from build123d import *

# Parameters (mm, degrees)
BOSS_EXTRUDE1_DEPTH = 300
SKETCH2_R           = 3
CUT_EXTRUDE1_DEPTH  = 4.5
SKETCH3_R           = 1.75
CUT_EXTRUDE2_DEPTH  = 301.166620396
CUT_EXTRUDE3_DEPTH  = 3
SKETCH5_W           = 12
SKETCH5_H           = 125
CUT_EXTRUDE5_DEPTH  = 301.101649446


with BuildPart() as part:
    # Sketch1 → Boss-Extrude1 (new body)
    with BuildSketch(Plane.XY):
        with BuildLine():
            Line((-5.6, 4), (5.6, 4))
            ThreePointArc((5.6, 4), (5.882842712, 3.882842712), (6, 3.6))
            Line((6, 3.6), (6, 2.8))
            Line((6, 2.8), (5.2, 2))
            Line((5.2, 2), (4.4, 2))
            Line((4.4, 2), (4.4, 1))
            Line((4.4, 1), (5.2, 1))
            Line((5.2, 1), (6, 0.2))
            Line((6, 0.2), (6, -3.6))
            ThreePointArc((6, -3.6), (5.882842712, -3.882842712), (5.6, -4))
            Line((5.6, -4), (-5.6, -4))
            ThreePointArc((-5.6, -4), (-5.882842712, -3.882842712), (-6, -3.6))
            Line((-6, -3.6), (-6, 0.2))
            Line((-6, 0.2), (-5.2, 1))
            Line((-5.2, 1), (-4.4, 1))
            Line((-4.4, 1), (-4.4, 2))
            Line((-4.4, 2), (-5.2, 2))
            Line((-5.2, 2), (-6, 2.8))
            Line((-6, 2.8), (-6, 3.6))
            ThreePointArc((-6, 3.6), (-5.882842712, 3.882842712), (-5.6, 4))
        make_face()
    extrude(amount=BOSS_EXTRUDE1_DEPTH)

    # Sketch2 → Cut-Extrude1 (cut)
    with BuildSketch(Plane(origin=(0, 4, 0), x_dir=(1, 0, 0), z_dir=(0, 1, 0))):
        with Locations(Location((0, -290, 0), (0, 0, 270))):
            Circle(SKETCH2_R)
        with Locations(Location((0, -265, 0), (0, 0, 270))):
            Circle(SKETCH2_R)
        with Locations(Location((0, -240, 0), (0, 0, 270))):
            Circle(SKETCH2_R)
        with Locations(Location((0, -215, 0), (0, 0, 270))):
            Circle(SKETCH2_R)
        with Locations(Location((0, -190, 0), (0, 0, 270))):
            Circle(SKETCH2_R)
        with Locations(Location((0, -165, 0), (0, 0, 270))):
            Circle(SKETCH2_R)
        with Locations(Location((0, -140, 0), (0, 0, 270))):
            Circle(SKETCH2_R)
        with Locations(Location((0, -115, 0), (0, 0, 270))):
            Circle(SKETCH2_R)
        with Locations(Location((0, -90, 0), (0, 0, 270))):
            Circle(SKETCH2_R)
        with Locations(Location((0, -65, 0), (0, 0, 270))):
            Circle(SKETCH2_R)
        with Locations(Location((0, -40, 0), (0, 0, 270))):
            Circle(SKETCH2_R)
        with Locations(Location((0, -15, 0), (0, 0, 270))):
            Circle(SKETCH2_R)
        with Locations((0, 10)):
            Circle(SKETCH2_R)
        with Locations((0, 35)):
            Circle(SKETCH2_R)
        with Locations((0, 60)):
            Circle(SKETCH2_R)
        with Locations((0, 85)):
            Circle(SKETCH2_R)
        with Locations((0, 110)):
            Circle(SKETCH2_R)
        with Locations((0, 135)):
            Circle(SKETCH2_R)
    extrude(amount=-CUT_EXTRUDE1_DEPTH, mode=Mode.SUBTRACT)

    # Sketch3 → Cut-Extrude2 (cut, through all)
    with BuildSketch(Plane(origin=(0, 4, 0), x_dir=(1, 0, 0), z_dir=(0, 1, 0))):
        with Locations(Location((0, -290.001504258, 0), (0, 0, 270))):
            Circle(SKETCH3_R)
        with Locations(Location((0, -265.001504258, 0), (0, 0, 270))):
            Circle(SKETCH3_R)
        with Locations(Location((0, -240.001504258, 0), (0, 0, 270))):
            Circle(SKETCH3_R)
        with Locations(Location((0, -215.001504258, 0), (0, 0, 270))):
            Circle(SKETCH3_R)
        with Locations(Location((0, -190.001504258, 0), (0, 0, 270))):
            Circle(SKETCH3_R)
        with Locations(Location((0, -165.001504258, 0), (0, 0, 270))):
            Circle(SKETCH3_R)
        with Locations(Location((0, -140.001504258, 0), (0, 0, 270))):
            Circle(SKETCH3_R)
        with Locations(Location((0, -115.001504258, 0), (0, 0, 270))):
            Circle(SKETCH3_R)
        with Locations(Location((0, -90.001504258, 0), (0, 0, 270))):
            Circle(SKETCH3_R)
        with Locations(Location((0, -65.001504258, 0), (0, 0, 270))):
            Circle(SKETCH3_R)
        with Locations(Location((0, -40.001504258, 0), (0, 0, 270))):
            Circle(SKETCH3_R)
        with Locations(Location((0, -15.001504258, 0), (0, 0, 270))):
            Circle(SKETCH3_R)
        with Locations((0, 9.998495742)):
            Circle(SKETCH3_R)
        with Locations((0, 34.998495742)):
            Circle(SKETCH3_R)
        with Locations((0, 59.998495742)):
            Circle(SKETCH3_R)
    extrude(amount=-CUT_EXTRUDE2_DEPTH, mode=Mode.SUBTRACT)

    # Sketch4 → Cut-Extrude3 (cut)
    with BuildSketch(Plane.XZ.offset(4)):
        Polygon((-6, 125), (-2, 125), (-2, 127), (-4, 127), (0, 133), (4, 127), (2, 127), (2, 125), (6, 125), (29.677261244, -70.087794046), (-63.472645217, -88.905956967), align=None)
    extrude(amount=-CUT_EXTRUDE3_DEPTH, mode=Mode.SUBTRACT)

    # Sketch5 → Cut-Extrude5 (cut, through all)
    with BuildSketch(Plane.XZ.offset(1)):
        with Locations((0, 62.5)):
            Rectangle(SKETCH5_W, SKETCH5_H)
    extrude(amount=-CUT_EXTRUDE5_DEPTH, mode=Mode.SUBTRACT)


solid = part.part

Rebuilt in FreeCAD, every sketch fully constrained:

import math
import FreeCAD as App
import Part
import Sketcher

V = App.Vector
Q = App.Units.Quantity

doc = App.newDocument("Part")
body = doc.addObject("PartDesign::Body", "Body")

# Sketch on XY plane
sketch1 = body.newObject("Sketcher::SketchObject", "Sketch")
sketch1.AttachmentSupport = (doc.getObject("XY_Plane"), [""])
sketch1.MapMode = "FlatFace"
sketch1.addGeometry([
    Part.LineSegment(V(5.6, 4, 0), V(-5.6, 4, 0)),  # 0
    Part.ArcOfCircle(Part.Circle(V(-5.6, 3.6, 0), V(0, 0, 1), 0.4), math.radians(90), math.radians(180)),  # 1
    Part.LineSegment(V(-6, 3.6, 0), V(-6, 2.8, 0)),  # 2
    Part.LineSegment(V(-6, 2.8, 0), V(-5.2, 2, 0)),  # 3
    Part.LineSegment(V(-5.2, 2, 0), V(-4.4, 2, 0)),  # 4
    Part.LineSegment(V(-4.4, 2, 0), V(-4.4, 1, 0)),  # 5
    Part.LineSegment(V(-4.4, 1, 0), V(-5.2, 1, 0)),  # 6
    Part.LineSegment(V(-5.2, 1, 0), V(-6, 0.2, 0)),  # 7
    Part.LineSegment(V(-6, 0.2, 0), V(-6, -3.6, 0)),  # 8
    Part.ArcOfCircle(Part.Circle(V(-5.6, -3.6, 0), V(0, 0, 1), 0.4), math.radians(-180), math.radians(-90)),  # 9
    Part.LineSegment(V(-5.6, -4, 0), V(5.6, -4, 0)),  # 10
    Part.ArcOfCircle(Part.Circle(V(5.6, -3.6, 0), V(0, 0, 1), 0.4), math.radians(-90), math.radians(0)),  # 11
    Part.LineSegment(V(6, -3.6, 0), V(6, 0.2, 0)),  # 12
    Part.LineSegment(V(6, 0.2, 0), V(5.2, 1, 0)),  # 13
    Part.LineSegment(V(5.2, 1, 0), V(4.4, 1, 0)),  # 14
    Part.LineSegment(V(4.4, 1, 0), V(4.4, 2, 0)),  # 15
    Part.LineSegment(V(4.4, 2, 0), V(5.2, 2, 0)),  # 16
    Part.LineSegment(V(5.2, 2, 0), V(6, 2.8, 0)),  # 17
    Part.LineSegment(V(6, 2.8, 0), V(6, 3.6, 0)),  # 18
    Part.ArcOfCircle(Part.Circle(V(5.6, 3.6, 0), V(0, 0, 1), 0.4), math.radians(0), math.radians(90)),  # 19
], False)
sketch1.addConstraint([
    Sketcher.Constraint("Tangent", 0, 2, 1, 1),
    Sketcher.Constraint("Tangent", 1, 2, 2, 1),
    Sketcher.Constraint("Coincident", 2, 2, 3, 1),
    Sketcher.Constraint("Coincident", 3, 2, 4, 1),
    Sketcher.Constraint("Coincident", 4, 2, 5, 1),
    Sketcher.Constraint("Coincident", 5, 2, 6, 1),
    Sketcher.Constraint("Coincident", 6, 2, 7, 1),
    Sketcher.Constraint("Coincident", 7, 2, 8, 1),
    Sketcher.Constraint("Tangent", 8, 2, 9, 1),
    Sketcher.Constraint("Tangent", 9, 2, 10, 1),
    Sketcher.Constraint("Tangent", 10, 2, 11, 1),
    Sketcher.Constraint("Tangent", 11, 2, 12, 1),
    Sketcher.Constraint("Coincident", 12, 2, 13, 1),
    Sketcher.Constraint("Coincident", 13, 2, 14, 1),
    Sketcher.Constraint("Coincident", 14, 2, 15, 1),
    Sketcher.Constraint("Coincident", 15, 2, 16, 1),
    Sketcher.Constraint("Coincident", 16, 2, 17, 1),
    Sketcher.Constraint("Coincident", 17, 2, 18, 1),
    Sketcher.Constraint("Tangent", 18, 2, 19, 1),
    Sketcher.Constraint("Tangent", 19, 2, 0, 1),
    Sketcher.Constraint("Horizontal", 0),
    Sketcher.Constraint("Vertical", 2),
    Sketcher.Constraint("Horizontal", 4),
    Sketcher.Constraint("Vertical", 5),
    Sketcher.Constraint("Horizontal", 6),
    Sketcher.Constraint("Vertical", 8),
    Sketcher.Constraint("Horizontal", 10),
    Sketcher.Constraint("Vertical", 12),
    Sketcher.Constraint("Horizontal", 14),
    Sketcher.Constraint("Vertical", 15),
    Sketcher.Constraint("Horizontal", 16),
    Sketcher.Constraint("Vertical", 18),
    Sketcher.Constraint("Equal", 1, 9),
    Sketcher.Constraint("Equal", 9, 11),
    Sketcher.Constraint("Equal", 11, 19),
    Sketcher.Constraint("Symmetric", 1, 3, 11, 3, -1, 1),
    Sketcher.Constraint("Symmetric", 7, 2, 12, 2, -2),
    Sketcher.Constraint("Symmetric", 6, 2, 13, 2, -2),
    Sketcher.Constraint("Symmetric", 4, 2, 15, 2, -2),
    Sketcher.Constraint("Symmetric", 2, 2, 17, 2, -2),
    Sketcher.Constraint("Perpendicular", 3, 7),
    Sketcher.Constraint("Perpendicular", 7, 13),
    Sketcher.Constraint("Perpendicular", 13, 17),
    Sketcher.Constraint("Vertical", 3, 2, 6, 2),
    Sketcher.Constraint("Equal", 16, 2),
    Sketcher.Constraint("Radius", 1, 0.4),
    Sketcher.Constraint("DistanceY", 5, 2, 5, 1, 1.0),
    Sketcher.Constraint("DistanceX", 0, 2, 0, 1, 11.2),
    Sketcher.Constraint("DistanceX", 4, 1, 4, 2, 0.8),
    Sketcher.Constraint("DistanceY", 8, 2, 8, 1, 3.8),
    Sketcher.Constraint("DistanceY", -1, 1, 0, 2, 4.0),
])
pad1 = body.newObject("PartDesign::Pad", "Pad")
pad1.Profile = sketch1
pad1.Length = 300

# Sketch on XZ plane
sketch2 = body.newObject("Sketcher::SketchObject", "Sketch001")
sketch2.AttachmentSupport = (doc.getObject("XZ_Plane"), [""])
sketch2.MapMode = "FlatFace"
sketch2.AttachmentOffset = App.Placement(V(0, 0, -4), App.Rotation())
sketch2.addGeometry([
    Part.Circle(V(0, 290, 0), V(0, 0, 1), 3),  # 0
    Part.Circle(V(0, 265, 0), V(0, 0, 1), 3),  # 1
    Part.Circle(V(0, 240, 0), V(0, 0, 1), 3),  # 2
    Part.Circle(V(0, 215, 0), V(0, 0, 1), 3),  # 3
    Part.Circle(V(0, 190, 0), V(0, 0, 1), 3),  # 4
    Part.Circle(V(0, 165, 0), V(0, 0, 1), 3),  # 5
    Part.Circle(V(0, 140, 0), V(0, 0, 1), 3),  # 6
    Part.Circle(V(0, 115, 0), V(0, 0, 1), 3),  # 7
    Part.Circle(V(0, 90, 0), V(0, 0, 1), 3),  # 8
    Part.Circle(V(0, 65, 0), V(0, 0, 1), 3),  # 9
    Part.Circle(V(0, 40, 0), V(0, 0, 1), 3),  # 10
    Part.Circle(V(0, 15, 0), V(0, 0, 1), 3),  # 11
    Part.Circle(V(0, -10, 0), V(0, 0, 1), 3),  # 12
    Part.Circle(V(0, -35, 0), V(0, 0, 1), 3),  # 13
    Part.Circle(V(0, -60, 0), V(0, 0, 1), 3),  # 14
    Part.Circle(V(0, -85, 0), V(0, 0, 1), 3),  # 15
    Part.Circle(V(0, -110, 0), V(0, 0, 1), 3),  # 16
    Part.Circle(V(0, -135, 0), V(0, 0, 1), 3),  # 17
], False)
sketch2.addConstraint([
    Sketcher.Constraint("Equal", 0, 1),
    Sketcher.Constraint("Equal", 1, 2),
    Sketcher.Constraint("Equal", 2, 3),
    Sketcher.Constraint("Equal", 3, 4),
    Sketcher.Constraint("Equal", 4, 5),
    Sketcher.Constraint("Equal", 5, 6),
    Sketcher.Constraint("Equal", 6, 7),
    Sketcher.Constraint("Equal", 7, 8),
    Sketcher.Constraint("Equal", 8, 9),
    Sketcher.Constraint("Equal", 9, 10),
    Sketcher.Constraint("Equal", 10, 11),
    Sketcher.Constraint("Equal", 11, 12),
    Sketcher.Constraint("Equal", 12, 13),
    Sketcher.Constraint("Equal", 13, 14),
    Sketcher.Constraint("Equal", 14, 15),
    Sketcher.Constraint("Equal", 15, 16),
    Sketcher.Constraint("Equal", 16, 17),
    Sketcher.Constraint("PointOnObject", 0, 3, -2),
    Sketcher.Constraint("PointOnObject", 1, 3, -2),
    Sketcher.Constraint("PointOnObject", 2, 3, -2),
    Sketcher.Constraint("PointOnObject", 3, 3, -2),
    Sketcher.Constraint("PointOnObject", 4, 3, -2),
    Sketcher.Constraint("PointOnObject", 5, 3, -2),
    Sketcher.Constraint("PointOnObject", 6, 3, -2),
    Sketcher.Constraint("PointOnObject", 7, 3, -2),
    Sketcher.Constraint("PointOnObject", 8, 3, -2),
    Sketcher.Constraint("PointOnObject", 9, 3, -2),
    Sketcher.Constraint("PointOnObject", 10, 3, -2),
    Sketcher.Constraint("PointOnObject", 11, 3, -2),
    Sketcher.Constraint("PointOnObject", 12, 3, -2),
    Sketcher.Constraint("PointOnObject", 13, 3, -2),
    Sketcher.Constraint("PointOnObject", 14, 3, -2),
    Sketcher.Constraint("PointOnObject", 15, 3, -2),
    Sketcher.Constraint("PointOnObject", 16, 3, -2),
    Sketcher.Constraint("PointOnObject", 17, 3, -2),
    Sketcher.Constraint("Diameter", 0, 6.0),
    Sketcher.Constraint("DistanceY", -1, 1, 0, 3, 290.0),
    Sketcher.Constraint("DistanceY", -1, 1, 1, 3, 265.0),
    Sketcher.Constraint("DistanceY", -1, 1, 2, 3, 240.0),
    Sketcher.Constraint("DistanceY", -1, 1, 3, 3, 215.0),
    Sketcher.Constraint("DistanceY", -1, 1, 4, 3, 190.0),
    Sketcher.Constraint("DistanceY", -1, 1, 5, 3, 165.0),
    Sketcher.Constraint("DistanceY", -1, 1, 6, 3, 140.0),
    Sketcher.Constraint("DistanceY", -1, 1, 7, 3, 115.0),
    Sketcher.Constraint("DistanceY", -1, 1, 8, 3, 90.0),
    Sketcher.Constraint("DistanceY", -1, 1, 9, 3, 65.0),
    Sketcher.Constraint("DistanceY", -1, 1, 10, 3, 40.0),
    Sketcher.Constraint("DistanceY", -1, 1, 11, 3, 15.0),
    Sketcher.Constraint("DistanceY", 12, 3, -1, 1, 10.0),
    Sketcher.Constraint("DistanceY", 13, 3, -1, 1, 35.0),
    Sketcher.Constraint("DistanceY", 14, 3, -1, 1, 60.0),
    Sketcher.Constraint("DistanceY", 15, 3, -1, 1, 85.0),
    Sketcher.Constraint("DistanceY", 16, 3, -1, 1, 110.0),
    Sketcher.Constraint("DistanceY", 17, 3, -1, 1, 135.0),
])
pocket1 = body.newObject("PartDesign::Pocket", "Pocket")
pocket1.Profile = sketch2
pocket1.Length = 4.5
pocket1.Reversed = True

# Sketch on XZ plane
sketch3 = body.newObject("Sketcher::SketchObject", "Sketch002")
sketch3.AttachmentSupport = (doc.getObject("XZ_Plane"), [""])
sketch3.MapMode = "FlatFace"
sketch3.AttachmentOffset = App.Placement(V(0, 0, -4), App.Rotation())
sketch3.addGeometry([
    Part.Circle(V(0, 290, 0), V(0, 0, 1), 1.8),  # 0
    Part.Circle(V(0, 265, 0), V(0, 0, 1), 1.8),  # 1
    Part.Circle(V(0, 240, 0), V(0, 0, 1), 1.8),  # 2
    Part.Circle(V(0, 215, 0), V(0, 0, 1), 1.8),  # 3
    Part.Circle(V(0, 190, 0), V(0, 0, 1), 1.8),  # 4
    Part.Circle(V(0, 165, 0), V(0, 0, 1), 1.8),  # 5
    Part.Circle(V(0, 140, 0), V(0, 0, 1), 1.8),  # 6
    Part.Circle(V(0, 115, 0), V(0, 0, 1), 1.8),  # 7
    Part.Circle(V(0, 90, 0), V(0, 0, 1), 1.8),  # 8
    Part.Circle(V(0, 65, 0), V(0, 0, 1), 1.8),  # 9
    Part.Circle(V(0, 40, 0), V(0, 0, 1), 1.8),  # 10
    Part.Circle(V(0, 15, 0), V(0, 0, 1), 1.8),  # 11
    Part.Circle(V(0, -10, 0), V(0, 0, 1), 1.8),  # 12
    Part.Circle(V(0, -35, 0), V(0, 0, 1), 1.8),  # 13
    Part.Circle(V(0, -60, 0), V(0, 0, 1), 1.8),  # 14
], False)
sketch3.addConstraint([
    Sketcher.Constraint("Equal", 0, 1),
    Sketcher.Constraint("Equal", 1, 2),
    Sketcher.Constraint("Equal", 2, 3),
    Sketcher.Constraint("Equal", 3, 4),
    Sketcher.Constraint("Equal", 4, 5),
    Sketcher.Constraint("Equal", 5, 6),
    Sketcher.Constraint("Equal", 6, 7),
    Sketcher.Constraint("Equal", 7, 8),
    Sketcher.Constraint("Equal", 8, 9),
    Sketcher.Constraint("Equal", 9, 10),
    Sketcher.Constraint("Equal", 10, 11),
    Sketcher.Constraint("Equal", 11, 12),
    Sketcher.Constraint("Equal", 12, 13),
    Sketcher.Constraint("Equal", 13, 14),
    Sketcher.Constraint("PointOnObject", 0, 3, -2),
    Sketcher.Constraint("PointOnObject", 1, 3, -2),
    Sketcher.Constraint("PointOnObject", 2, 3, -2),
    Sketcher.Constraint("PointOnObject", 3, 3, -2),
    Sketcher.Constraint("PointOnObject", 4, 3, -2),
    Sketcher.Constraint("PointOnObject", 5, 3, -2),
    Sketcher.Constraint("PointOnObject", 6, 3, -2),
    Sketcher.Constraint("PointOnObject", 7, 3, -2),
    Sketcher.Constraint("PointOnObject", 8, 3, -2),
    Sketcher.Constraint("PointOnObject", 9, 3, -2),
    Sketcher.Constraint("PointOnObject", 10, 3, -2),
    Sketcher.Constraint("PointOnObject", 11, 3, -2),
    Sketcher.Constraint("PointOnObject", 12, 3, -2),
    Sketcher.Constraint("PointOnObject", 13, 3, -2),
    Sketcher.Constraint("PointOnObject", 14, 3, -2),
    Sketcher.Constraint("Diameter", 0, 3.5),
    Sketcher.Constraint("DistanceY", 1, 3, 0, 3, 25.0),
    Sketcher.Constraint("DistanceY", 2, 3, 1, 3, 25.0),
    Sketcher.Constraint("DistanceY", 3, 3, 2, 3, 25.0),
    Sketcher.Constraint("DistanceY", 4, 3, 3, 3, 25.0),
    Sketcher.Constraint("DistanceY", 5, 3, 4, 3, 25.0),
    Sketcher.Constraint("DistanceY", 6, 3, 5, 3, 25.0),
    Sketcher.Constraint("DistanceY", 7, 3, 6, 3, 25.0),
    Sketcher.Constraint("DistanceY", 8, 3, 7, 3, 25.0),
    Sketcher.Constraint("DistanceY", 9, 3, 8, 3, 25.0),
    Sketcher.Constraint("DistanceY", 10, 3, 9, 3, 25.0),
    Sketcher.Constraint("DistanceY", 11, 3, 10, 3, 25.0),
    Sketcher.Constraint("DistanceY", 12, 3, 11, 3, 25.0),
    Sketcher.Constraint("DistanceY", 13, 3, 12, 3, 25.0),
    Sketcher.Constraint("DistanceY", 14, 3, 13, 3, 25.0),
    Sketcher.Constraint("DistanceY", -1, 1, 0, 3, 290.001504),
])
pocket2 = body.newObject("PartDesign::Pocket", "Pocket001")
pocket2.Profile = sketch3
pocket2.Type = "ThroughAll"
pocket2.Reversed = True

# Sketch on XZ plane
sketch4 = body.newObject("Sketcher::SketchObject", "Sketch003")
sketch4.AttachmentSupport = (doc.getObject("XZ_Plane"), [""])
sketch4.MapMode = "FlatFace"
sketch4.AttachmentOffset = App.Placement(V(0, 0, 4), App.Rotation())
sketch4.addGeometry([
    Part.LineSegment(V(-2, 125, 0), V(-6, 125, 0)),  # 0
    Part.LineSegment(V(-6, 125, 0), V(-63.5, -88.9, 0)),  # 1
    Part.LineSegment(V(-63.5, -88.9, 0), V(29.7, -70.1, 0)),  # 2
    Part.LineSegment(V(29.7, -70.1, 0), V(6, 125, 0)),  # 3
    Part.LineSegment(V(6, 125, 0), V(2, 125, 0)),  # 4
    Part.LineSegment(V(2, 125, 0), V(2, 127, 0)),  # 5
    Part.LineSegment(V(2, 127, 0), V(4, 127, 0)),  # 6
    Part.LineSegment(V(4, 127, 0), V(0, 133, 0)),  # 7
    Part.LineSegment(V(0, 133, 0), V(-4, 127, 0)),  # 8
    Part.LineSegment(V(-4, 127, 0), V(-2, 127, 0)),  # 9
    Part.LineSegment(V(-2, 127, 0), V(-2, 125, 0)),  # 10
], False)
sketch4.addConstraint([
    Sketcher.Constraint("Coincident", 0, 2, 1, 1),
    Sketcher.Constraint("Coincident", 1, 2, 2, 1),
    Sketcher.Constraint("Coincident", 2, 2, 3, 1),
    Sketcher.Constraint("Coincident", 3, 2, 4, 1),
    Sketcher.Constraint("Coincident", 4, 2, 5, 1),
    Sketcher.Constraint("Coincident", 5, 2, 6, 1),
    Sketcher.Constraint("Coincident", 6, 2, 7, 1),
    Sketcher.Constraint("Coincident", 7, 2, 8, 1),
    Sketcher.Constraint("Coincident", 8, 2, 9, 1),
    Sketcher.Constraint("Coincident", 9, 2, 10, 1),
    Sketcher.Constraint("Coincident", 10, 2, 0, 1),
    Sketcher.Constraint("Horizontal", 0),
    Sketcher.Constraint("Horizontal", 4),
    Sketcher.Constraint("Vertical", 5),
    Sketcher.Constraint("Horizontal", 6),
    Sketcher.Constraint("Horizontal", 9),
    Sketcher.Constraint("Vertical", 10),
    Sketcher.Constraint("Symmetric", 0, 2, 3, 2, -2),
    Sketcher.Constraint("Symmetric", 6, 2, 8, 2, -2),
    Sketcher.Constraint("PointOnObject", 7, 2, -2),
    Sketcher.Constraint("Equal", 0, 4),
    Sketcher.Constraint("Equal", 9, 5),
    Sketcher.Constraint("DistanceX", 0, 2, 0, 1, 4.0),
    Sketcher.Constraint("DistanceX", 6, 1, 6, 2, 2.0),
    Sketcher.Constraint("DistanceX", 0, 2, -1, 1, 6.0),
    Sketcher.Constraint("DistanceY", -1, 1, 0, 2, 125.0),
    Sketcher.Constraint("DistanceY", -1, 1, 7, 2, 133.0),
    Sketcher.Constraint("Angle", 3, Q("96.919984 deg")),
    Sketcher.Constraint("DistanceX", -1, 1, 2, 2, 29.677261),
    Sketcher.Constraint("Distance", 1, 221.492355),
    Sketcher.Constraint("Distance", 2, 95.031723),
])
pocket3 = body.newObject("PartDesign::Pocket", "Pocket002")
pocket3.Profile = sketch4
pocket3.Length = 3

# Sketch on XZ plane
sketch5 = body.newObject("Sketcher::SketchObject", "Sketch004")
sketch5.AttachmentSupport = (doc.getObject("XZ_Plane"), [""])
sketch5.MapMode = "FlatFace"
sketch5.AttachmentOffset = App.Placement(V(0, 0, 1), App.Rotation())
sketch5.addGeometry([
    Part.LineSegment(V(-6, 125, 0), V(-6, 0, 0)),
    Part.LineSegment(V(-6, 0, 0), V(6, 0, 0)),
    Part.LineSegment(V(6, 0, 0), V(6, 125, 0)),
    Part.LineSegment(V(6, 125, 0), V(-6, 125, 0)),
], False)
sketch5.addConstraint([
    Sketcher.Constraint("Coincident", 0, 2, 1, 1),
    Sketcher.Constraint("Coincident", 1, 2, 2, 1),
    Sketcher.Constraint("Coincident", 2, 2, 3, 1),
    Sketcher.Constraint("Coincident", 3, 2, 0, 1),
    Sketcher.Constraint("Vertical", 0),
    Sketcher.Constraint("Horizontal", 1),
    Sketcher.Constraint("Vertical", 2),
    Sketcher.Constraint("Horizontal", 3),
    Sketcher.Constraint("Symmetric", 0, 2, 1, 2, -1, 1),
    Sketcher.Constraint("DistanceX", 1, 1, 1, 2, 12.0),
    Sketcher.Constraint("DistanceY", 0, 2, 0, 1, 125.0),
])
pocket4 = body.newObject("PartDesign::Pocket", "Pocket003")
pocket4.Profile = sketch5
pocket4.Type = "ThroughAll"

doc.recompute()
